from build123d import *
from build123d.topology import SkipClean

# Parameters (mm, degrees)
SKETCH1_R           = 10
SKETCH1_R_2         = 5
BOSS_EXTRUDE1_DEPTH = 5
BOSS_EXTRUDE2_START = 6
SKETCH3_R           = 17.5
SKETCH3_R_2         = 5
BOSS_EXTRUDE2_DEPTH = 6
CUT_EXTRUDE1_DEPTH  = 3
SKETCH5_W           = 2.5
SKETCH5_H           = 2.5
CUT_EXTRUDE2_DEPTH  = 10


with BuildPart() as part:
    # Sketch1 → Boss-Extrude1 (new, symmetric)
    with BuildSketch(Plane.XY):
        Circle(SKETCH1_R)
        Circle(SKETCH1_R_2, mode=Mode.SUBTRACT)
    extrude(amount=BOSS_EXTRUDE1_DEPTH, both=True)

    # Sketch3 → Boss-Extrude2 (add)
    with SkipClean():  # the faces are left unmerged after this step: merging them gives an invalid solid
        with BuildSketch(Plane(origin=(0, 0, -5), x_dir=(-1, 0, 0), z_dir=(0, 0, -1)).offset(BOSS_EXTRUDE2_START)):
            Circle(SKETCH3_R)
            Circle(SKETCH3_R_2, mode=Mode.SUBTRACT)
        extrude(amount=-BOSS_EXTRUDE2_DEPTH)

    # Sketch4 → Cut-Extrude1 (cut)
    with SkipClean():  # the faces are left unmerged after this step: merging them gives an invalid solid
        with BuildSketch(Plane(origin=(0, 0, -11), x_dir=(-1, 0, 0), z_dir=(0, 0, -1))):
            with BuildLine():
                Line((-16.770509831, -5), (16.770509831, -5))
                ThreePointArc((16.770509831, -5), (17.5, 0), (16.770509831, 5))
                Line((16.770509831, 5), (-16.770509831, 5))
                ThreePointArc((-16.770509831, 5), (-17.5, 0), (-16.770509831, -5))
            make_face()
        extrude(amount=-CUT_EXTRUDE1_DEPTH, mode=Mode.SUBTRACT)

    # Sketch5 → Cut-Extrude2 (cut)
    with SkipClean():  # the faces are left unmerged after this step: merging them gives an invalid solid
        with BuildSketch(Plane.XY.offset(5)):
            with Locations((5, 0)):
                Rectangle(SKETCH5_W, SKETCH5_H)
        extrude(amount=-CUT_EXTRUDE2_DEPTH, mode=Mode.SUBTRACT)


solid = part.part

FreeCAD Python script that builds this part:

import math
import FreeCAD as App
import Part
import Sketcher


def add_polygon(sketch, points):
    """Adds a closed chain of lines whose ends are joined by coincident constraints."""
    first, n = sketch.GeometryCount, len(points)
    for a, b in zip(points, points[1:] + points[:1]):
        sketch.addGeometry(Part.LineSegment(App.Vector(*a, 0), App.Vector(*b, 0)), False)
    for i in range(n):
        sketch.addConstraint(Sketcher.Constraint("Coincident", first + i, 2, first + (i + 1) % n, 1))

doc = App.newDocument("Part")
body = doc.addObject("PartDesign::Body", "Body")

# Sketch on XY plane
sketch1 = body.newObject("Sketcher::SketchObject", "Sketch")
sketch1.AttachmentSupport = (doc.getObject("XY_Plane"), [""])
sketch1.MapMode = "FlatFace"
sketch1.addGeometry([
    Part.Circle(App.Vector(0, 0, 0), App.Vector(0, 0, 1), 10),
    Part.Circle(App.Vector(0, 0, 0), App.Vector(0, 0, 1), 5),
], False)
sketch1.addConstraint([
    Sketcher.Constraint("Coincident", 0, 3, -1, 1),
    Sketcher.Constraint("Coincident", 1, 3, -1, 1),
    Sketcher.Constraint("Diameter", 0, 20.0),
    Sketcher.Constraint("Diameter", 1, 10.0),
])
pad1 = body.newObject("PartDesign::Pad", "Pad")
pad1.Profile = sketch1
pad1.Length = 10
pad1.Midplane = True

# Sketch on XY plane
sketch2 = body.newObject("Sketcher::SketchObject", "Sketch001")
sketch2.AttachmentSupport = (doc.getObject("XY_Plane"), [""])
sketch2.MapMode = "FlatFace"
sketch2.AttachmentOffset = App.Placement(App.Vector(0, 0, -11), App.Rotation())
sketch2.addGeometry([
    Part.Circle(App.Vector(0, 0, 0), App.Vector(0, 0, 1), 18),
    Part.Circle(App.Vector(0, 0, 0), App.Vector(0, 0, 1), 5),
], False)
sketch2.addConstraint([
    Sketcher.Constraint("Coincident", 0, 3, -1, 1),
    Sketcher.Constraint("Coincident", 1, 3, -1, 1),
    Sketcher.Constraint("Diameter", 0, 35.0),
    Sketcher.Constraint("Diameter", 1, 10.0),
])
pad2 = body.newObject("PartDesign::Pad", "Pad001")
pad2.Profile = sketch2
pad2.Length = 6

# Sketch on XY plane
sketch3 = body.newObject("Sketcher::SketchObject", "Sketch002")
sketch3.AttachmentSupport = (doc.getObject("XY_Plane"), [""])
sketch3.MapMode = "FlatFace"
sketch3.AttachmentOffset = App.Placement(App.Vector(0, 0, -11), App.Rotation())
sketch3.addGeometry([
    Part.LineSegment(App.Vector(17, -5, 0), App.Vector(-17, -5, 0)),
    Part.ArcOfCircle(Part.Circle(App.Vector(0, 0, 0), App.Vector(0, 0, 1), 17), math.radians(163), math.radians(197)),
    Part.LineSegment(App.Vector(-17, 5, 0), App.Vector(17, 5, 0)),
    Part.ArcOfCircle(Part.Circle(App.Vector(0, 0, 0), App.Vector(0, 0, 1), 17), math.radians(-17), math.radians(17)),
], False)
sketch3.addConstraint([
    Sketcher.Constraint("Coincident", 0, 2, 1, 2),
    Sketcher.Constraint("Coincident", 1, 1, 2, 1),
    Sketcher.Constraint("Coincident", 2, 2, 3, 2),
    Sketcher.Constraint("Coincident", 3, 1, 0, 1),
    Sketcher.Constraint("Horizontal", 0),
    Sketcher.Constraint("Horizontal", 2),
    Sketcher.Constraint("Coincident", 1, 3, -1, 1),
    Sketcher.Constraint("Coincident", 3, 3, -1, 1),
    Sketcher.Constraint("Equal", 1, 3),
    Sketcher.Constraint("Vertical", 0, 2, 1, 1),
    Sketcher.Constraint("Radius", 1, 17.5),
    Sketcher.Constraint("DistanceY", 0, 2, -1, 1, 5.0),
])
pocket1 = body.newObject("PartDesign::Pocket", "Pocket")
pocket1.Profile = sketch3
pocket1.Length = 3
pocket1.Reversed = True

# Sketch on XY plane
sketch4 = body.newObject("Sketcher::SketchObject", "Sketch003")
sketch4.AttachmentSupport = (doc.getObject("XY_Plane"), [""])
sketch4.MapMode = "FlatFace"
sketch4.AttachmentOffset = App.Placement(App.Vector(0, 0, 5), App.Rotation())
add_polygon(sketch4, [(3.8, 1.2), (3.8, -1.2), (6.2, -1.2), (6.2, 1.2)])  # lines 0-3
sketch4.addConstraint([
    Sketcher.Constraint("Vertical", 0),
    Sketcher.Constraint("Horizontal", 1),
    Sketcher.Constraint("Vertical", 2),
    Sketcher.Constraint("Horizontal", 3),
    Sketcher.Constraint("Equal", 3, 0),
    Sketcher.Constraint("DistanceX", 1, 1, 1, 2, 2.5),
    Sketcher.Constraint("DistanceX", -1, 1, 0, 2, 3.75),
    Sketcher.Constraint("DistanceY", 0, 2, -1, 1, 1.25),
])
pocket2 = body.newObject("PartDesign::Pocket", "Pocket001")
pocket2.Profile = sketch4
pocket2.Length = 10

doc.recompute()
